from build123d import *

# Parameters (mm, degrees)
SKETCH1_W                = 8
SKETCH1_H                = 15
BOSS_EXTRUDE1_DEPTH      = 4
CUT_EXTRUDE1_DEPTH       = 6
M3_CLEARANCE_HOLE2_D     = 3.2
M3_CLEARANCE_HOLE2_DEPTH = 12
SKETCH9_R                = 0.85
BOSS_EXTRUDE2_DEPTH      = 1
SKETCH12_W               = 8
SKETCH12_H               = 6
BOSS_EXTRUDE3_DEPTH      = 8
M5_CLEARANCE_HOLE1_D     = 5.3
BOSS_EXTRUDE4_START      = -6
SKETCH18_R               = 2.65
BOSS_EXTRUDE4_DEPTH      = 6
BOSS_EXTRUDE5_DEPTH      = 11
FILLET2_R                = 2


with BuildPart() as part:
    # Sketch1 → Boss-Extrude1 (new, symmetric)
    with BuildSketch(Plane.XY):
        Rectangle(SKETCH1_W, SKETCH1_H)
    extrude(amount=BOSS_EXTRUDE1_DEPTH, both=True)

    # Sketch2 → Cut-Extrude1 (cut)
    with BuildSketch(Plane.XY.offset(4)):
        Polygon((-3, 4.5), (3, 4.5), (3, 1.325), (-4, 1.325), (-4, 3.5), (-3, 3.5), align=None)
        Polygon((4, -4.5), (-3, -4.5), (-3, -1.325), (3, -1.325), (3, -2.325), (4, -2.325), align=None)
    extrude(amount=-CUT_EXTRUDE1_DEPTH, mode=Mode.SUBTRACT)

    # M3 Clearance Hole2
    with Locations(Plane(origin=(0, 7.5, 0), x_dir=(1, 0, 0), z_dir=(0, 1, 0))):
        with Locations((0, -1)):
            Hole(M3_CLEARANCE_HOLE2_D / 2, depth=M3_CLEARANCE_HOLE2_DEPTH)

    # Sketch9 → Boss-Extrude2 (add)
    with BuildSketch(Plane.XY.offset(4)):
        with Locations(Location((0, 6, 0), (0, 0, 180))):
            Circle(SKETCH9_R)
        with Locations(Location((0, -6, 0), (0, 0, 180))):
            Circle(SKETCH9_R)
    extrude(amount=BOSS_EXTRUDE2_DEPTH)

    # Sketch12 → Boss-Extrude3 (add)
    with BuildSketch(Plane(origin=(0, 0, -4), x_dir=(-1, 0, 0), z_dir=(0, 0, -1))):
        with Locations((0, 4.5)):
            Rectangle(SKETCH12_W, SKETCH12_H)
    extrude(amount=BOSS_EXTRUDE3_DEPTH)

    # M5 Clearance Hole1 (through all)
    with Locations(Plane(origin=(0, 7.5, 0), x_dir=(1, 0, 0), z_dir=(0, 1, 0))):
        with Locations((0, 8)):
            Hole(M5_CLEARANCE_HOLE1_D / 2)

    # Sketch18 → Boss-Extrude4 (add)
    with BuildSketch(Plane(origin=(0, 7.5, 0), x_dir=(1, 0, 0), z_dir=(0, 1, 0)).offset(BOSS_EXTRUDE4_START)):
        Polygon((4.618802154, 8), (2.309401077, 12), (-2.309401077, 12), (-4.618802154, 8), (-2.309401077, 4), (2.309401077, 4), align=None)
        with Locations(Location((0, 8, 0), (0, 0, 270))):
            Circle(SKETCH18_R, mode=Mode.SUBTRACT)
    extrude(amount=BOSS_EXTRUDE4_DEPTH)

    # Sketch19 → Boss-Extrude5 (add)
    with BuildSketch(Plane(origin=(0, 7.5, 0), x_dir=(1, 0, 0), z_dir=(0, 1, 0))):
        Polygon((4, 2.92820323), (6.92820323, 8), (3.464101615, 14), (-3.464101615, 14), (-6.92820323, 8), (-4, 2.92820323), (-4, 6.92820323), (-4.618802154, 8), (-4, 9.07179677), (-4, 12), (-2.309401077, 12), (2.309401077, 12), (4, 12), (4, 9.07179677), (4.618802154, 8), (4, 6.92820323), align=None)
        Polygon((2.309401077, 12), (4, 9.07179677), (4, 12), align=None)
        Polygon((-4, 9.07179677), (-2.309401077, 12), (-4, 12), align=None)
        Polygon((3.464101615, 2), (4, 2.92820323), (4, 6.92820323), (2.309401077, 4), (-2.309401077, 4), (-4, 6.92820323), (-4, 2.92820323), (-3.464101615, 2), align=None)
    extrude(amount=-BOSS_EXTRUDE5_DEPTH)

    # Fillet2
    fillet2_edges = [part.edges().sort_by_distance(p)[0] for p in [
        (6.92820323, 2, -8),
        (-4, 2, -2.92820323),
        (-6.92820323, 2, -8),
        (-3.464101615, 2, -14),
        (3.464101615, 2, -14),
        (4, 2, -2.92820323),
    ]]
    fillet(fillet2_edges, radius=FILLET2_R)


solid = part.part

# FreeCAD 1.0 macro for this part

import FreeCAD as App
import Part
import Sketcher
Q = App.Units.Quantity


def edges_at(feature, points):
    """Names of the edges that pass closest to the given points."""
    edges = feature.Shape.Edges
    near = lambda p: min(range(len(edges)), key=lambda i: edges[i].distToShape(Part.Vertex(*p))[0])
    return sorted({f"Edge{near(p) + 1}" for p in points})


def add_polygon(sketch, points):
    """Adds a closed chain of lines whose ends are joined by coincident constraints."""
    first, n = sketch.GeometryCount, len(points)
    for a, b in zip(points, points[1:] + points[:1]):
        sketch.addGeometry(Part.LineSegment(App.Vector(*a, 0), App.Vector(*b, 0)), False)
    for i in range(n):
        sketch.addConstraint(Sketcher.Constraint("Coincident", first + i, 2, first + (i + 1) % n, 1))

doc = App.newDocument("Part")
params = doc.addObject("Spreadsheet::Sheet", "Params")
for row, (alias, value) in enumerate([
    ("sketch1_width", "8 mm"),
    ("sketch1_height", "15 mm"),
    ("pad1_length", "8 mm"),
    ("sketch2_width", "6 mm"),
    ("sketch2_width2", "1 mm"),
    ("pocket1_length", "6 mm"),
    ("sketch3_diameter", "3.2 mm"),
    ("hole_diameter", "3.2 mm"),
    ("hole_depth", "12 mm"),
    ("sketch4_diameter", "1.7 mm"),
    ("pad2_length", "1 mm"),
    ("sketch5_width", "8 mm"),
    ("sketch5_height", "6 mm"),
    ("pad3_length", "8 mm"),
    ("sketch6_diameter", "5.3 mm"),
    ("hole2_diameter", "5.3 mm"),
    ("sketch7_diameter", "5.3 mm"),
    ("pad4_length", "6 mm"),
    ("pad5_length", "11 mm"),
    ("fillet_radius", "2 mm"),
], start=1):
    params.set(f"A{row}", alias)
    params.set(f"B{row}", "=" + value)
    params.setAlias(f"B{row}", alias)

body = doc.addObject("PartDesign::Body", "Body")

# Sketch on XY plane
sketch1 = doc.addObject("Sketcher::SketchObject", "Sketch")
body.addObject(sketch1)
sketch1.AttachmentSupport = (doc.XY_Plane, [""])
sketch1.MapMode = "FlatFace"
add_polygon(sketch1, [(-4, 7.5), (-4, -7.5), (4, -7.5), (4, 7.5)])  # lines 0-3
sketch1.addConstraint(Sketcher.Constraint("Vertical", 0))
sketch1.addConstraint(Sketcher.Constraint("Horizontal", 1))
sketch1.addConstraint(Sketcher.Constraint("Vertical", 2))
sketch1.addConstraint(Sketcher.Constraint("Horizontal", 3))
sketch1.addConstraint(Sketcher.Constraint("Symmetric", 0, 2, 2, 2, -1, 1))
sketch1.addConstraint(Sketcher.Constraint("DistanceX", 1, 1, 1, 2, Q("8 mm")))
sketch1.addConstraint(Sketcher.Constraint("DistanceY", 0, 2, 0, 1, Q("15 mm")))
sketch1.setExpression("Constraints[9]", "Params.sketch1_width")
sketch1.setExpression("Constraints[10]", "Params.sketch1_height")
pad1 = doc.addObject("PartDesign::Pad", "Pad")
body.addObject(pad1)
pad1.Profile = sketch1
pad1.setExpression("Length", "Params.pad1_length")
pad1.Midplane = True

# Sketch on XY plane
sketch2 = doc.addObject("Sketcher::SketchObject", "Sketch001")
body.addObject(sketch2)
sketch2.AttachmentSupport = (doc.XY_Plane, [""])
sketch2.MapMode = "FlatFace"
sketch2.AttachmentOffset = App.Placement(App.Vector(0, 0, 4), App.Rotation())
add_polygon(sketch2, [(3, 4.5), (-3, 4.5), (-3, 3.5), (-4, 3.5), (-4, 1.325), (3, 1.325)])  # lines 0-5
add_polygon(sketch2, [(-3, -4.5), (4, -4.5), (4, -2.325), (3, -2.325), (3, -1.325), (-3, -1.325)])  # lines 6-11
sketch2.addConstraint(Sketcher.Constraint("Horizontal", 0))
sketch2.addConstraint(Sketcher.Constraint("Vertical", 1))
sketch2.addConstraint(Sketcher.Constraint("Horizontal", 2))
sketch2.addConstraint(Sketcher.Constraint("Vertical", 3))
sketch2.addConstraint(Sketcher.Constraint("Horizontal", 4))
sketch2.addConstraint(Sketcher.Constraint("Vertical", 5))
sketch2.addConstraint(Sketcher.Constraint("Horizontal", 6))
sketch2.addConstraint(Sketcher.Constraint("Vertical", 7))
sketch2.addConstraint(Sketcher.Constraint("Horizontal", 8))
sketch2.addConstraint(Sketcher.Constraint("Vertical", 9))
sketch2.addConstraint(Sketcher.Constraint("Horizontal", 10))
sketch2.addConstraint(Sketcher.Constraint("Vertical", 11))
sketch2.addConstraint(Sketcher.Constraint("Symmetric", 4, 2, 10, 2, -1, 1))
sketch2.addConstraint(Sketcher.Constraint("Symmetric", 0, 2, 11, 2, -1))
sketch2.addConstraint(Sketcher.Constraint("Vertical", 5, 2, 8, 2))
sketch2.addConstraint(Sketcher.Constraint("Equal", 4, 6))
sketch2.addConstraint(Sketcher.Constraint("Equal", 8, 1))
sketch2.addConstraint(Sketcher.Constraint("Equal", 3, 7))
sketch2.addConstraint(Sketcher.Constraint("DistanceX", 0, 2, 0, 1, Q("6 mm")))
sketch2.addConstraint(Sketcher.Constraint("DistanceX", 2, 2, 2, 1, Q("1 mm")))
sketch2.addConstraint(Sketcher.Constraint("DistanceY", 6, 2, 5, 2, Q("9 mm")))
sketch2.addConstraint(Sketcher.Constraint("DistanceY", 3, 2, 3, 1, Q("2.175 mm")))
sketch2.setExpression("Constraints[30]", "Params.sketch2_width")
sketch2.setExpression("Constraints[31]", "Params.sketch2_width2")
pocket1 = doc.addObject("PartDesign::Pocket", "Pocket")
body.addObject(pocket1)
pocket1.Profile = sketch2
pocket1.setExpression("Length", "Params.pocket1_length")

# Sketch on XZ plane
sketch3 = doc.addObject("Sketcher::SketchObject", "Sketch002")
body.addObject(sketch3)
sketch3.AttachmentSupport = (doc.XZ_Plane, [""])
sketch3.MapMode = "FlatFace"
sketch3.AttachmentOffset = App.Placement(App.Vector(0, 0, -7.5), App.Rotation())
sketch3.addGeometry(Part.Circle(App.Vector(0, 1, 0), App.Vector(0, 0, 1), 1.6), False)
sketch3.addConstraint(Sketcher.Constraint("PointOnObject", 0, 3, -2))
sketch3.addConstraint(Sketcher.Constraint("Diameter", 0, Q("3.2 mm")))
sketch3.addConstraint(Sketcher.Constraint("DistanceY", -1, 1, 0, 3, Q("1 mm")))
sketch3.setExpression("Constraints[1]", "Params.sketch3_diameter")
doc.recompute()
hole = doc.addObject("PartDesign::Hole", "Hole")
body.addObject(hole)
hole.Profile = sketch3
hole.ThreadType = "None"
hole.setExpression("Diameter", "Params.hole_diameter")
hole.DepthType = "Dimension"
hole.setExpression("Depth", "Params.hole_depth")
hole.DrillPoint = "Flat"
hole.Reversed = True

# Sketch on XY plane
sketch4 = doc.addObject("Sketcher::SketchObject", "Sketch003")
body.addObject(sketch4)
sketch4.AttachmentSupport = (doc.XY_Plane, [""])
sketch4.MapMode = "FlatFace"
sketch4.AttachmentOffset = App.Placement(App.Vector(0, 0, 4), App.Rotation())
sketch4.addGeometry(Part.Circle(App.Vector(0, 6, 0), App.Vector(0, 0, 1), 0.85), False)
sketch4.addGeometry(Part.Circle(App.Vector(0, -6, 0), App.Vector(0, 0, 1), 0.85), False)
sketch4.addConstraint(Sketcher.Constraint("Equal", 0, 1))
sketch4.addConstraint(Sketcher.Constraint("Symmetric", 0, 3, 1, 3, -1, 1))
sketch4.addConstraint(Sketcher.Constraint("PointOnObject", 0, 3, -2))
sketch4.addConstraint(Sketcher.Constraint("Diameter", 0, Q("1.7 mm")))
sketch4.addConstraint(Sketcher.Constraint("DistanceY", -1, 1, 0, 3, Q("6 mm")))
sketch4.setExpression("Constraints[3]", "Params.sketch4_diameter")
pad2 = doc.addObject("PartDesign::Pad", "Pad001")
body.addObject(pad2)
pad2.Profile = sketch4
pad2.setExpression("Length", "Params.pad2_length")

# Sketch on XY plane
sketch5 = doc.addObject("Sketcher::SketchObject", "Sketch004")
body.addObject(sketch5)
sketch5.AttachmentSupport = (doc.XY_Plane, [""])
sketch5.MapMode = "FlatFace"
sketch5.AttachmentOffset = App.Placement(App.Vector(0, 0, -4), App.Rotation())
add_polygon(sketch5, [(4, 7.5), (4, 1.5), (-4, 1.5), (-4, 7.5)])  # lines 0-3
sketch5.addConstraint(Sketcher.Constraint("Vertical", 0))
sketch5.addConstraint(Sketcher.Constraint("Horizontal", 1))
sketch5.addConstraint(Sketcher.Constraint("Vertical", 2))
sketch5.addConstraint(Sketcher.Constraint("Horizontal", 3))
sketch5.addConstraint(Sketcher.Constraint("DistanceX", 1, 2, 1, 1, Q("8 mm")))
sketch5.addConstraint(Sketcher.Constraint("DistanceY", 0, 2, 0, 1, Q("6 mm")))
sketch5.addConstraint(Sketcher.Constraint("DistanceX", -1, 1, 0, 2, Q("4 mm")))
sketch5.addConstraint(Sketcher.Constraint("DistanceY", -1, 1, 0, 2, Q("1.5 mm")))
sketch5.setExpression("Constraints[8]", "Params.sketch5_width")
sketch5.setExpression("Constraints[9]", "Params.sketch5_height")
pad3 = doc.addObject("PartDesign::Pad", "Pad002")
body.addObject(pad3)
pad3.Profile = sketch5
pad3.setExpression("Length", "Params.pad3_length")
pad3.Reversed = True

# Sketch on XZ plane
sketch6 = doc.addObject("Sketcher::SketchObject", "Sketch005")
body.addObject(sketch6)
sketch6.AttachmentSupport = (doc.XZ_Plane, [""])
sketch6.MapMode = "FlatFace"
sketch6.AttachmentOffset = App.Placement(App.Vector(0, 0, -7.5), App.Rotation())
sketch6.addGeometry(Part.Circle(App.Vector(0, -8, 0), App.Vector(0, 0, 1), 2.65), False)
sketch6.addConstraint(Sketcher.Constraint("PointOnObject", 0, 3, -2))
sketch6.addConstraint(Sketcher.Constraint("Diameter", 0, Q("5.3 mm")))
sketch6.addConstraint(Sketcher.Constraint("DistanceY", 0, 3, -1, 1, Q("8 mm")))
sketch6.setExpression("Constraints[1]", "Params.sketch6_diameter")
doc.recompute()
hole2 = doc.addObject("PartDesign::Hole", "Hole001")
body.addObject(hole2)
hole2.Profile = sketch6
hole2.ThreadType = "None"
hole2.setExpression("Diameter", "Params.hole2_diameter")
hole2.DepthType = "ThroughAll"
hole2.Reversed = True

# Sketch on XZ plane
sketch7 = doc.addObject("Sketcher::SketchObject", "Sketch006")
body.addObject(sketch7)
sketch7.AttachmentSupport = (doc.XZ_Plane, [""])
sketch7.MapMode = "FlatFace"
sketch7.AttachmentOffset = App.Placement(App.Vector(0, 0, -1.5), App.Rotation())
add_polygon(sketch7, [(4.618802, -8), (2.309401, -12), (-2.309401, -12), (-4.618802, -8), (-2.309401, -4), (2.309401, -4)])  # lines 0-5
sketch7.addGeometry(Part.Circle(App.Vector(0, -8, 0), App.Vector(0, 0, 1), 2.65), False)  # 6
sketch7.addConstraint(Sketcher.Constraint("Horizontal", 1))
sketch7.addConstraint(Sketcher.Constraint("Horizontal", 4))
sketch7.addConstraint(Sketcher.Constraint("Symmetric", 2, 2, 5, 2, -2))
sketch7.addConstraint(Sketcher.Constraint("PointOnObject", 6, 3, -2))
sketch7.addConstraint(Sketcher.Constraint("Parallel", 0, 3))
sketch7.addConstraint(Sketcher.Constraint("Parallel", 2, 5))
sketch7.addConstraint(Sketcher.Constraint("Horizontal", 6, 3, 2, 2))
sketch7.addConstraint(Sketcher.Constraint("Vertical", 1, 2, 3, 2))
sketch7.addConstraint(Sketcher.Constraint("Vertical", 0, 2, 4, 2))
sketch7.addConstraint(Sketcher.Constraint("Diameter", 6, Q("5.3 mm")))
sketch7.addConstraint(Sketcher.Constraint("Angle", 0, Q("-120 deg")))
sketch7.addConstraint(Sketcher.Constraint("DistanceY", 6, 3, -1, 1, Q("8 mm")))
sketch7.addConstraint(Sketcher.Constraint("DistanceY", 0, 2, -1, 1, Q("12 mm")))
sketch7.addConstraint(Sketcher.Constraint("DistanceX", -1, 1, 0, 2, Q("2.309401 mm")))
sketch7.setExpression("Constraints[15]", "Params.sketch7_diameter")
pad4 = doc.addObject("PartDesign::Pad", "Pad003")
body.addObject(pad4)
pad4.Profile = sketch7
pad4.setExpression("Length", "Params.pad4_length")
pad4.Reversed = True

# Sketch on XZ plane
sketch8 = doc.addObject("Sketcher::SketchObject", "Sketch007")
body.addObject(sketch8)
sketch8.AttachmentSupport = (doc.XZ_Plane, [""])
sketch8.MapMode = "FlatFace"
sketch8.AttachmentOffset = App.Placement(App.Vector(0, 0, -7.5), App.Rotation())
add_polygon(sketch8, [(4, -2.928203), (6.928203, -8), (3.464102, -14), (-3.464102, -14), (-6.928203, -8), (-4, -2.928203), (-3.464102, -2), (3.464102, -2)])  # lines 0-7
add_polygon(sketch8, [(-4, -6.928203), (-4.618802, -8), (-4, -9.071797), (-2.309401, -12), (2.309401, -12), (4, -9.071797), (4.618802, -8), (4, -6.928203), (2.309401, -4), (-2.309401, -4)])  # lines 8-17
sketch8.addConstraint(Sketcher.Constraint("Horizontal", 2))
sketch8.addConstraint(Sketcher.Constraint("Horizontal", 6))
sketch8.addConstraint(Sketcher.Constraint("Horizontal", 11))
sketch8.addConstraint(Sketcher.Constraint("Horizontal", 16))
sketch8.addConstraint(Sketcher.Constraint("Symmetric", 0, 2, 3, 2, -2))
sketch8.addConstraint(Sketcher.Constraint("Symmetric", 4, 2, 7, 2, -2))
sketch8.addConstraint(Sketcher.Constraint("Symmetric", 9, 2, 12, 2, -2))
sketch8.addConstraint(Sketcher.Constraint("Symmetric", 8, 2, 13, 2, -2))
sketch8.addConstraint(Sketcher.Constraint("Symmetric", 14, 2, 17, 2, -2))
sketch8.addConstraint(Sketcher.Constraint("Parallel", 0, 3))
sketch8.addConstraint(Sketcher.Constraint("Parallel", 1, 4))
sketch8.addConstraint(Sketcher.Constraint("Parallel", 4, 5))
sketch8.addConstraint(Sketcher.Constraint("Parallel", 3, 7))
sketch8.addConstraint(Sketcher.Constraint("Parallel", 5, 8))
sketch8.addConstraint(Sketcher.Constraint("Parallel", 7, 9))
sketch8.addConstraint(Sketcher.Constraint("Parallel", 9, 10))
sketch8.addConstraint(Sketcher.Constraint("Parallel", 8, 12))
sketch8.addConstraint(Sketcher.Constraint("Parallel", 14, 15))
sketch8.addConstraint(Sketcher.Constraint("Parallel", 13, 17))
sketch8.addConstraint(Sketcher.Constraint("Horizontal", 3, 2, 8, 2))
sketch8.addConstraint(Sketcher.Constraint("Vertical", 2, 2, 5, 2))
sketch8.addConstraint(Sketcher.Constraint("Vertical", 4, 2, 9, 2))
sketch8.addConstraint(Sketcher.Constraint("Vertical", 12, 2, 14, 2))
sketch8.addConstraint(Sketcher.Constraint("Vertical", 11, 2, 15, 2))
sketch8.addConstraint(Sketcher.Constraint("Angle", 0, Q("-60 deg")))
sketch8.addConstraint(Sketcher.Constraint("DistanceY", 0, 2, -1, 1, Q("8 mm")))
sketch8.addConstraint(Sketcher.Constraint("DistanceY", 1, 2, -1, 1, Q("14 mm")))
sketch8.addConstraint(Sketcher.Constraint("DistanceX", 4, 2, -1, 1, Q("4 mm")))
sketch8.addConstraint(Sketcher.Constraint("DistanceY", 10, 2, -1, 1, Q("12 mm")))
sketch8.addConstraint(Sketcher.Constraint("DistanceY", 14, 2, 7, 2, Q("4 mm")))
sketch8.addConstraint(Sketcher.Constraint("DistanceX", -1, 1, 1, 2, Q("3.464102 mm")))
pad5 = doc.addObject("PartDesign::Pad", "Pad004")
body.addObject(pad5)
pad5.Profile = sketch8
pad5.setExpression("Length", "Params.pad5_length")
doc.recompute()

fillet = doc.addObject("PartDesign::Fillet", "Fillet")
body.addObject(fillet)
fillet.Base = (pad5, edges_at(pad5, [
    (6.928, 2, -8),
    (-4, 2, -2.928),
    (-6.928, 2, -8),
    (-3.464, 2, -14),
    (3.464, 2, -14),
    (4, 2, -2.928),
]))
fillet.setExpression("Radius", "Params.fillet_radius")

doc.recompute()
